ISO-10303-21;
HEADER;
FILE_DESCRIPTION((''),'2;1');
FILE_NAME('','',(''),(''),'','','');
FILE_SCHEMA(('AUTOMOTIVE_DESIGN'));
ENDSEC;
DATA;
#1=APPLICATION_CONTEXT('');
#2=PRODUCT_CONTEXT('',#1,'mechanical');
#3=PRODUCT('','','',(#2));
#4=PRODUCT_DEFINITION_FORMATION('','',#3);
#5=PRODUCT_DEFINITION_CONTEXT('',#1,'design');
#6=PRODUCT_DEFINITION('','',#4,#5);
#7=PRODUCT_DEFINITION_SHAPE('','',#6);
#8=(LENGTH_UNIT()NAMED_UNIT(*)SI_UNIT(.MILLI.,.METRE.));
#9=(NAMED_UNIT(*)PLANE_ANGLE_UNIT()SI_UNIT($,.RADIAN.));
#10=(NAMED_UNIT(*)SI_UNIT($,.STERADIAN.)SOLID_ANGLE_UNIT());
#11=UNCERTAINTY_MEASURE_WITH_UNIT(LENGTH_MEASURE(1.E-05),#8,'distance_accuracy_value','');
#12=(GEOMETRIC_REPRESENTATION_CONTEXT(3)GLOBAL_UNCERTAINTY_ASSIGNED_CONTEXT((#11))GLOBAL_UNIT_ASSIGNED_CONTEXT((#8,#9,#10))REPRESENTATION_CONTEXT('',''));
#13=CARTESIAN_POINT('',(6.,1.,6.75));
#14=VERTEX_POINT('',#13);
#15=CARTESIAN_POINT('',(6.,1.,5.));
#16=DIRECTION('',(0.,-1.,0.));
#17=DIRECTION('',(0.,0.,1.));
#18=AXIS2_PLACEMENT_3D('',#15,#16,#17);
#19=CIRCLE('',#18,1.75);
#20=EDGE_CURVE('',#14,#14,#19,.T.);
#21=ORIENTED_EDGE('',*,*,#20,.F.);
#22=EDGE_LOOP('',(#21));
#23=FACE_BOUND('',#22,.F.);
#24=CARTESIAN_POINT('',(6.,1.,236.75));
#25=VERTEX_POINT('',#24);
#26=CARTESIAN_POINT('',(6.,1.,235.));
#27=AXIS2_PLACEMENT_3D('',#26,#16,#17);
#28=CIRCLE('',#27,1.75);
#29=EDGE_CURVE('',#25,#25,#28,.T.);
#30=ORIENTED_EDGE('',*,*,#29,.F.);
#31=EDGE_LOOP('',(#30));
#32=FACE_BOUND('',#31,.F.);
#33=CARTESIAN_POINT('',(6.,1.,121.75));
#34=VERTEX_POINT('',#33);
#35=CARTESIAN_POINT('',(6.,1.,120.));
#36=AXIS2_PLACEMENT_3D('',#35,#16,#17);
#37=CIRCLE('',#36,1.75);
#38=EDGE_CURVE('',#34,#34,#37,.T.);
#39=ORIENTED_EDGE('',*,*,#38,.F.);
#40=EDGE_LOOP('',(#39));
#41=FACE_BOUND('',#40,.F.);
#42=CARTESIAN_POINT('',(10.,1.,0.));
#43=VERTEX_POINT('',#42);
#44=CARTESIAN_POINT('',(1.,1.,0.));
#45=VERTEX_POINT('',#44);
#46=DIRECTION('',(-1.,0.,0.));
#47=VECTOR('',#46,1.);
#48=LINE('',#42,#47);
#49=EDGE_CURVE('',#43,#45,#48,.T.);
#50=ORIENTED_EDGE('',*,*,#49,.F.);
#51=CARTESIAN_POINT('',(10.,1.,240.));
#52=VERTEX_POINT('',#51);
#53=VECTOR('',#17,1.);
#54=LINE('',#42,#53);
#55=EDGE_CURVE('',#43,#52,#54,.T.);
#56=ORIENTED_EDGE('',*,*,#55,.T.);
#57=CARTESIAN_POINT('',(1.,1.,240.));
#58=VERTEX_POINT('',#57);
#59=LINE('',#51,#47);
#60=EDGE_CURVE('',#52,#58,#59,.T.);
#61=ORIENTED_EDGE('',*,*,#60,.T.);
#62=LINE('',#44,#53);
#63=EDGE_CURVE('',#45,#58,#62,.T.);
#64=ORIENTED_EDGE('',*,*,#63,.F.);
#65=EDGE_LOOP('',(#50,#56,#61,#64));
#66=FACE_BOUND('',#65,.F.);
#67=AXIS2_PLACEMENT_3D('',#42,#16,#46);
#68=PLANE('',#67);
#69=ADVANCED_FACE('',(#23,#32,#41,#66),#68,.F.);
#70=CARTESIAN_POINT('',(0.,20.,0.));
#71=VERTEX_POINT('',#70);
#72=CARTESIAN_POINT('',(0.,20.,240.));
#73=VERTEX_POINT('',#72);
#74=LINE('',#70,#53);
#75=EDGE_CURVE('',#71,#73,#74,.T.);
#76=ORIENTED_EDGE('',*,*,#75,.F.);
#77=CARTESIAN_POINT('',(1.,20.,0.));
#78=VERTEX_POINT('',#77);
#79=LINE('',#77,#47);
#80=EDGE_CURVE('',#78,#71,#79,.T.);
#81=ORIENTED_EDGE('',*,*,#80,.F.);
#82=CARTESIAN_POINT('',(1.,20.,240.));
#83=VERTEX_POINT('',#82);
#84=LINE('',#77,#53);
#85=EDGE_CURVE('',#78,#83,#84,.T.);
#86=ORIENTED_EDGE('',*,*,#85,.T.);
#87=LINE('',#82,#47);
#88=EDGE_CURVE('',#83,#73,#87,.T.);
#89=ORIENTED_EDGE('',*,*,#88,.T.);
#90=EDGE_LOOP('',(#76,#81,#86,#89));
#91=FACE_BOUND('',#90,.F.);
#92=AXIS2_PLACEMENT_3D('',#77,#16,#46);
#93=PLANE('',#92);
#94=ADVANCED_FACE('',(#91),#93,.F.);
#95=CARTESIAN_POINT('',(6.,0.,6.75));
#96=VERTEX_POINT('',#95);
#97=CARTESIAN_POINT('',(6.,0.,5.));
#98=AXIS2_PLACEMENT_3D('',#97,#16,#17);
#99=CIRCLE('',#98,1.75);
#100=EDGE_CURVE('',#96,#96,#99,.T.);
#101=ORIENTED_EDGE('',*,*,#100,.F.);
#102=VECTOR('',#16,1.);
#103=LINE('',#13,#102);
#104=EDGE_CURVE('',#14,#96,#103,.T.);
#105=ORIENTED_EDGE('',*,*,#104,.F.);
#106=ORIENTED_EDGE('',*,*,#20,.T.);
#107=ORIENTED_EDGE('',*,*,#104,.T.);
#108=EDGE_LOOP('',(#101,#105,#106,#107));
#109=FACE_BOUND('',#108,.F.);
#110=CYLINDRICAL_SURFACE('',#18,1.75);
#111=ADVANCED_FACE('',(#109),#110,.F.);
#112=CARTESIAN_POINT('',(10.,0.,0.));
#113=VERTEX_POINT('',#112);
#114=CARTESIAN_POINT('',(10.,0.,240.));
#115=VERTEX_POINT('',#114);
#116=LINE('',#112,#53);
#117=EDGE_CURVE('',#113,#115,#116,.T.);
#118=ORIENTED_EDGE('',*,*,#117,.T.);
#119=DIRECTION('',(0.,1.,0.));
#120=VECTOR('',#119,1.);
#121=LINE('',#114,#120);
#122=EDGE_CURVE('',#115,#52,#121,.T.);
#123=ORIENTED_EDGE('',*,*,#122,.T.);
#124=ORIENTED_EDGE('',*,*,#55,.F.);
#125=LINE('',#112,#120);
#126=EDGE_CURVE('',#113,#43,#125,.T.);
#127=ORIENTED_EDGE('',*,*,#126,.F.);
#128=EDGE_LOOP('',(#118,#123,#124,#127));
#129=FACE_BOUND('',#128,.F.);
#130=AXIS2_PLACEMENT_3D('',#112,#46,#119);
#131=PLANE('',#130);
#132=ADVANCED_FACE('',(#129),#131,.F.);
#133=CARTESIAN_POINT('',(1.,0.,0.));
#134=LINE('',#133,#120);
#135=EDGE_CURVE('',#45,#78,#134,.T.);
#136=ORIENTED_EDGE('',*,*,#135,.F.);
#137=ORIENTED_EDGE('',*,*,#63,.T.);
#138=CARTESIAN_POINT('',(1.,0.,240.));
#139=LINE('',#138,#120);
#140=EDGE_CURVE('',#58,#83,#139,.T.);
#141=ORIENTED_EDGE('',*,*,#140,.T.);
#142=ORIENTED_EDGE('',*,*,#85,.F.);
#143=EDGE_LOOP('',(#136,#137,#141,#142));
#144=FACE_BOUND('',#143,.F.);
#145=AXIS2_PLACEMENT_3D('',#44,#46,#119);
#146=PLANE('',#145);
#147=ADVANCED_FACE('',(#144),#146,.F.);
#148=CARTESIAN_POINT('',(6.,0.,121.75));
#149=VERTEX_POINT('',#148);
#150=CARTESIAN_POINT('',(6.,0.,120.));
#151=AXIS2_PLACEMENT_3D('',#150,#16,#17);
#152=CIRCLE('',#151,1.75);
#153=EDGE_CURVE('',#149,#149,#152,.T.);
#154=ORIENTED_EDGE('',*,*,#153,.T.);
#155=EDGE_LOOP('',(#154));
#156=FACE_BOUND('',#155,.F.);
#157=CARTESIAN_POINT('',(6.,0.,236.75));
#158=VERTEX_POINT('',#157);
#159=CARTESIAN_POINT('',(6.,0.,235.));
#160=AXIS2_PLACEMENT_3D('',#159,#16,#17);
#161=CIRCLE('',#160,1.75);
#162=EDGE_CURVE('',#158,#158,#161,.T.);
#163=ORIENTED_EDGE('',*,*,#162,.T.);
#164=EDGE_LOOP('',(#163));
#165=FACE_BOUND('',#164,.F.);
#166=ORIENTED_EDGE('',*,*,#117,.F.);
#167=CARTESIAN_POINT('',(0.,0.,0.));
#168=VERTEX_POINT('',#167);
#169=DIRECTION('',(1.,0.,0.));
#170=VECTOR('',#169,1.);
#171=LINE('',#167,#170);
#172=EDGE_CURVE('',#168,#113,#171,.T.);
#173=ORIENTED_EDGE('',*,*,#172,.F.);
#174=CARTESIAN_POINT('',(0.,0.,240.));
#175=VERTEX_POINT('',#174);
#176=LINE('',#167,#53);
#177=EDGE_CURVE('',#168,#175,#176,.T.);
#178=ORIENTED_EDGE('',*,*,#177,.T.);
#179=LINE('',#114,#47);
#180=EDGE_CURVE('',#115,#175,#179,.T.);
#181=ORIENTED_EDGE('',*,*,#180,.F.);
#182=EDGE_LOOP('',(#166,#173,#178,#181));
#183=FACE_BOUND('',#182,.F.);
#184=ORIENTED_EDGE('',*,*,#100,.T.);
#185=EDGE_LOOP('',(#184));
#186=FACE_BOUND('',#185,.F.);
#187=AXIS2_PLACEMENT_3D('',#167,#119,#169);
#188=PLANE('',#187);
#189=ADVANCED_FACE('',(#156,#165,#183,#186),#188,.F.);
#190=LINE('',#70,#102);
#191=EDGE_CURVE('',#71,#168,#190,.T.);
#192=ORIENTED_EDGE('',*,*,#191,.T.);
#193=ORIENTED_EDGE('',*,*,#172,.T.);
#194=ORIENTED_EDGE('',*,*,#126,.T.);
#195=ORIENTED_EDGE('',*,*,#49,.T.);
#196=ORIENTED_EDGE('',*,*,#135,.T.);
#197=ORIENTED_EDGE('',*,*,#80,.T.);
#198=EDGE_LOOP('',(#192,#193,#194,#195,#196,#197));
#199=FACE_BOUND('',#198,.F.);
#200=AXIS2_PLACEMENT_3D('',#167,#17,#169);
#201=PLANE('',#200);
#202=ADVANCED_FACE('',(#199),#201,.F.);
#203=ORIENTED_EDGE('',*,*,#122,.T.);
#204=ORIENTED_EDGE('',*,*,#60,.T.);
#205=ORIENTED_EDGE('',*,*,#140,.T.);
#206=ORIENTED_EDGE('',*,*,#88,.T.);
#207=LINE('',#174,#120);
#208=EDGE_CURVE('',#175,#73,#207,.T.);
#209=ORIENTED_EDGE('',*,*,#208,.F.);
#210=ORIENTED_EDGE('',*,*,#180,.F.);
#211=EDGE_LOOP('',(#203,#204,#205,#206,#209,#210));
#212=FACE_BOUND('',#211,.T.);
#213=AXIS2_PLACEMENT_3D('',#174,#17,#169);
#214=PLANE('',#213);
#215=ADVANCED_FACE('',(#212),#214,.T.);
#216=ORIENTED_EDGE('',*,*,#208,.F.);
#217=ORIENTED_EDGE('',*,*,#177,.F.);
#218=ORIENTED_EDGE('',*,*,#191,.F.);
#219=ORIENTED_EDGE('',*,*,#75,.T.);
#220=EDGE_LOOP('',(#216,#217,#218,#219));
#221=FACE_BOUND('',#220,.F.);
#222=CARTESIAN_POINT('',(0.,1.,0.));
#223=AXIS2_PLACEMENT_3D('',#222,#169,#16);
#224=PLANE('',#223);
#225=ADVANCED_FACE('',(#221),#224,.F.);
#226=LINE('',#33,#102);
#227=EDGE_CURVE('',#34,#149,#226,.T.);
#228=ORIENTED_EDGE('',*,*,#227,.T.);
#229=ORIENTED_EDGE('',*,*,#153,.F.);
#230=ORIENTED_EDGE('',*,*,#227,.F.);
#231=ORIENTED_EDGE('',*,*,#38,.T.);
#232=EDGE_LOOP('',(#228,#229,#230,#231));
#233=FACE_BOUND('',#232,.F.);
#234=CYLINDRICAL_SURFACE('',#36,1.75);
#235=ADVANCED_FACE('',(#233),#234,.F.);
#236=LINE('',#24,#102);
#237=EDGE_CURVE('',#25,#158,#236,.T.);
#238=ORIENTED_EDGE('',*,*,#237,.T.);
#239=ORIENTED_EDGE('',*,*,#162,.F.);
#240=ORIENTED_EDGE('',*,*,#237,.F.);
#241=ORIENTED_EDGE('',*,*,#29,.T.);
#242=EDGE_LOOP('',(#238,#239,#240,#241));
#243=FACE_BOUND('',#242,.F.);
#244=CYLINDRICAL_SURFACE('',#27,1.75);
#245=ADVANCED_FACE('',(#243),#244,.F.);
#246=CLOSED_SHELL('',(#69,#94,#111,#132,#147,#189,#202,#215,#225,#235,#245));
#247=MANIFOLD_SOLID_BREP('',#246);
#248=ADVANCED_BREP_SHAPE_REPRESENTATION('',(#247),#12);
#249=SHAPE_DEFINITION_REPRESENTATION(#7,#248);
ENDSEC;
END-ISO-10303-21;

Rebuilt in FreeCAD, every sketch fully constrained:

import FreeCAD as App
import Part
import Sketcher
Q = App.Units.Quantity

doc = App.newDocument("Part")
body = doc.addObject("PartDesign::Body", "Body")

sketch1 = doc.addObject("Sketcher::SketchObject", "Sketch")
body.addObject(sketch1)
sketch1.AttachmentSupport = (doc.XY_Plane, [""])
sketch1.MapMode = "FlatFace"
sketch1.addGeometry([
    Part.LineSegment(App.Vector(0, 0, 0), App.Vector(10, 0, 0)),
    Part.LineSegment(App.Vector(10, 0, 0), App.Vector(10, 1, 0)),
    Part.LineSegment(App.Vector(10, 1, 0), App.Vector(1, 1, 0)),
    Part.LineSegment(App.Vector(1, 1, 0), App.Vector(1, 20, 0)),
    Part.LineSegment(App.Vector(1, 20, 0), App.Vector(0, 20, 0)),
    Part.LineSegment(App.Vector(0, 20, 0), App.Vector(0, 0, 0)),
], False)
sketch1.addConstraint([
    Sketcher.Constraint("Coincident", 0, 2, 1, 1),
    Sketcher.Constraint("Coincident", 1, 2, 2, 1),
    Sketcher.Constraint("Coincident", 2, 2, 3, 1),
    Sketcher.Constraint("Coincident", 3, 2, 4, 1),
    Sketcher.Constraint("Coincident", 4, 2, 5, 1),
    Sketcher.Constraint("Coincident", 5, 2, 0, 1),
    Sketcher.Constraint("Horizontal", 0),
    Sketcher.Constraint("Vertical", 1),
    Sketcher.Constraint("Horizontal", 2),
    Sketcher.Constraint("Vertical", 3),
    Sketcher.Constraint("Horizontal", 4),
    Sketcher.Constraint("Vertical", 5),
    Sketcher.Constraint("Coincident", 5, 2, -1, 1),
    Sketcher.Constraint("Equal", 4, 1),
    Sketcher.Constraint("DistanceX", 0, 1, 0, 2, Q("10 mm")),
    Sketcher.Constraint("DistanceX", 4, 2, 4, 1, Q("1 mm")),
    Sketcher.Constraint("DistanceY", 5, 2, 5, 1, Q("20 mm")),
])
pad1 = doc.addObject("PartDesign::Pad", "Pad")
body.addObject(pad1)
pad1.Profile = sketch1
pad1.Length = 240

sketch2 = doc.addObject("Sketcher::SketchObject", "Sketch001")
body.addObject(sketch2)
sketch2.AttachmentSupport = (doc.XZ_Plane, [""])
sketch2.MapMode = "FlatFace"
sketch2.AttachmentOffset = App.Placement(App.Vector(0, 0, -1), App.Rotation())
sketch2.addGeometry([
    Part.Circle(App.Vector(6, 235, 0), App.Vector(0, 0, 1), 1.75),
    Part.Circle(App.Vector(6, 120, 0), App.Vector(0, 0, 1), 1.75),
    Part.Circle(App.Vector(6, 5, 0), App.Vector(0, 0, 1), 1.75),
], False)
sketch2.addConstraint([
    Sketcher.Constraint("Equal", 0, 1),
    Sketcher.Constraint("Equal", 1, 2),
    Sketcher.Constraint("Vertical", 0, 3, 1, 3),
    Sketcher.Constraint("Vertical", 1, 3, 2, 3),
    Sketcher.Constraint("Diameter", 0, Q("3.5 mm")),
    Sketcher.Constraint("DistanceX", -1, 1, 0, 3, Q("6 mm")),
    Sketcher.Constraint("DistanceY", -1, 1, 0, 3, Q("235 mm")),
    Sketcher.Constraint("DistanceY", -1, 1, 1, 3, Q("120 mm")),
    Sketcher.Constraint("DistanceY", -1, 1, 2, 3, Q("5 mm")),
])
doc.recompute()
hole = doc.addObject("PartDesign::Hole", "Hole")
body.addObject(hole)
hole.Profile = sketch2
hole.ThreadType = "None"
hole.Diameter = 3.5
hole.DepthType = "ThroughAll"
hole.Reversed = True

doc.recompute()
